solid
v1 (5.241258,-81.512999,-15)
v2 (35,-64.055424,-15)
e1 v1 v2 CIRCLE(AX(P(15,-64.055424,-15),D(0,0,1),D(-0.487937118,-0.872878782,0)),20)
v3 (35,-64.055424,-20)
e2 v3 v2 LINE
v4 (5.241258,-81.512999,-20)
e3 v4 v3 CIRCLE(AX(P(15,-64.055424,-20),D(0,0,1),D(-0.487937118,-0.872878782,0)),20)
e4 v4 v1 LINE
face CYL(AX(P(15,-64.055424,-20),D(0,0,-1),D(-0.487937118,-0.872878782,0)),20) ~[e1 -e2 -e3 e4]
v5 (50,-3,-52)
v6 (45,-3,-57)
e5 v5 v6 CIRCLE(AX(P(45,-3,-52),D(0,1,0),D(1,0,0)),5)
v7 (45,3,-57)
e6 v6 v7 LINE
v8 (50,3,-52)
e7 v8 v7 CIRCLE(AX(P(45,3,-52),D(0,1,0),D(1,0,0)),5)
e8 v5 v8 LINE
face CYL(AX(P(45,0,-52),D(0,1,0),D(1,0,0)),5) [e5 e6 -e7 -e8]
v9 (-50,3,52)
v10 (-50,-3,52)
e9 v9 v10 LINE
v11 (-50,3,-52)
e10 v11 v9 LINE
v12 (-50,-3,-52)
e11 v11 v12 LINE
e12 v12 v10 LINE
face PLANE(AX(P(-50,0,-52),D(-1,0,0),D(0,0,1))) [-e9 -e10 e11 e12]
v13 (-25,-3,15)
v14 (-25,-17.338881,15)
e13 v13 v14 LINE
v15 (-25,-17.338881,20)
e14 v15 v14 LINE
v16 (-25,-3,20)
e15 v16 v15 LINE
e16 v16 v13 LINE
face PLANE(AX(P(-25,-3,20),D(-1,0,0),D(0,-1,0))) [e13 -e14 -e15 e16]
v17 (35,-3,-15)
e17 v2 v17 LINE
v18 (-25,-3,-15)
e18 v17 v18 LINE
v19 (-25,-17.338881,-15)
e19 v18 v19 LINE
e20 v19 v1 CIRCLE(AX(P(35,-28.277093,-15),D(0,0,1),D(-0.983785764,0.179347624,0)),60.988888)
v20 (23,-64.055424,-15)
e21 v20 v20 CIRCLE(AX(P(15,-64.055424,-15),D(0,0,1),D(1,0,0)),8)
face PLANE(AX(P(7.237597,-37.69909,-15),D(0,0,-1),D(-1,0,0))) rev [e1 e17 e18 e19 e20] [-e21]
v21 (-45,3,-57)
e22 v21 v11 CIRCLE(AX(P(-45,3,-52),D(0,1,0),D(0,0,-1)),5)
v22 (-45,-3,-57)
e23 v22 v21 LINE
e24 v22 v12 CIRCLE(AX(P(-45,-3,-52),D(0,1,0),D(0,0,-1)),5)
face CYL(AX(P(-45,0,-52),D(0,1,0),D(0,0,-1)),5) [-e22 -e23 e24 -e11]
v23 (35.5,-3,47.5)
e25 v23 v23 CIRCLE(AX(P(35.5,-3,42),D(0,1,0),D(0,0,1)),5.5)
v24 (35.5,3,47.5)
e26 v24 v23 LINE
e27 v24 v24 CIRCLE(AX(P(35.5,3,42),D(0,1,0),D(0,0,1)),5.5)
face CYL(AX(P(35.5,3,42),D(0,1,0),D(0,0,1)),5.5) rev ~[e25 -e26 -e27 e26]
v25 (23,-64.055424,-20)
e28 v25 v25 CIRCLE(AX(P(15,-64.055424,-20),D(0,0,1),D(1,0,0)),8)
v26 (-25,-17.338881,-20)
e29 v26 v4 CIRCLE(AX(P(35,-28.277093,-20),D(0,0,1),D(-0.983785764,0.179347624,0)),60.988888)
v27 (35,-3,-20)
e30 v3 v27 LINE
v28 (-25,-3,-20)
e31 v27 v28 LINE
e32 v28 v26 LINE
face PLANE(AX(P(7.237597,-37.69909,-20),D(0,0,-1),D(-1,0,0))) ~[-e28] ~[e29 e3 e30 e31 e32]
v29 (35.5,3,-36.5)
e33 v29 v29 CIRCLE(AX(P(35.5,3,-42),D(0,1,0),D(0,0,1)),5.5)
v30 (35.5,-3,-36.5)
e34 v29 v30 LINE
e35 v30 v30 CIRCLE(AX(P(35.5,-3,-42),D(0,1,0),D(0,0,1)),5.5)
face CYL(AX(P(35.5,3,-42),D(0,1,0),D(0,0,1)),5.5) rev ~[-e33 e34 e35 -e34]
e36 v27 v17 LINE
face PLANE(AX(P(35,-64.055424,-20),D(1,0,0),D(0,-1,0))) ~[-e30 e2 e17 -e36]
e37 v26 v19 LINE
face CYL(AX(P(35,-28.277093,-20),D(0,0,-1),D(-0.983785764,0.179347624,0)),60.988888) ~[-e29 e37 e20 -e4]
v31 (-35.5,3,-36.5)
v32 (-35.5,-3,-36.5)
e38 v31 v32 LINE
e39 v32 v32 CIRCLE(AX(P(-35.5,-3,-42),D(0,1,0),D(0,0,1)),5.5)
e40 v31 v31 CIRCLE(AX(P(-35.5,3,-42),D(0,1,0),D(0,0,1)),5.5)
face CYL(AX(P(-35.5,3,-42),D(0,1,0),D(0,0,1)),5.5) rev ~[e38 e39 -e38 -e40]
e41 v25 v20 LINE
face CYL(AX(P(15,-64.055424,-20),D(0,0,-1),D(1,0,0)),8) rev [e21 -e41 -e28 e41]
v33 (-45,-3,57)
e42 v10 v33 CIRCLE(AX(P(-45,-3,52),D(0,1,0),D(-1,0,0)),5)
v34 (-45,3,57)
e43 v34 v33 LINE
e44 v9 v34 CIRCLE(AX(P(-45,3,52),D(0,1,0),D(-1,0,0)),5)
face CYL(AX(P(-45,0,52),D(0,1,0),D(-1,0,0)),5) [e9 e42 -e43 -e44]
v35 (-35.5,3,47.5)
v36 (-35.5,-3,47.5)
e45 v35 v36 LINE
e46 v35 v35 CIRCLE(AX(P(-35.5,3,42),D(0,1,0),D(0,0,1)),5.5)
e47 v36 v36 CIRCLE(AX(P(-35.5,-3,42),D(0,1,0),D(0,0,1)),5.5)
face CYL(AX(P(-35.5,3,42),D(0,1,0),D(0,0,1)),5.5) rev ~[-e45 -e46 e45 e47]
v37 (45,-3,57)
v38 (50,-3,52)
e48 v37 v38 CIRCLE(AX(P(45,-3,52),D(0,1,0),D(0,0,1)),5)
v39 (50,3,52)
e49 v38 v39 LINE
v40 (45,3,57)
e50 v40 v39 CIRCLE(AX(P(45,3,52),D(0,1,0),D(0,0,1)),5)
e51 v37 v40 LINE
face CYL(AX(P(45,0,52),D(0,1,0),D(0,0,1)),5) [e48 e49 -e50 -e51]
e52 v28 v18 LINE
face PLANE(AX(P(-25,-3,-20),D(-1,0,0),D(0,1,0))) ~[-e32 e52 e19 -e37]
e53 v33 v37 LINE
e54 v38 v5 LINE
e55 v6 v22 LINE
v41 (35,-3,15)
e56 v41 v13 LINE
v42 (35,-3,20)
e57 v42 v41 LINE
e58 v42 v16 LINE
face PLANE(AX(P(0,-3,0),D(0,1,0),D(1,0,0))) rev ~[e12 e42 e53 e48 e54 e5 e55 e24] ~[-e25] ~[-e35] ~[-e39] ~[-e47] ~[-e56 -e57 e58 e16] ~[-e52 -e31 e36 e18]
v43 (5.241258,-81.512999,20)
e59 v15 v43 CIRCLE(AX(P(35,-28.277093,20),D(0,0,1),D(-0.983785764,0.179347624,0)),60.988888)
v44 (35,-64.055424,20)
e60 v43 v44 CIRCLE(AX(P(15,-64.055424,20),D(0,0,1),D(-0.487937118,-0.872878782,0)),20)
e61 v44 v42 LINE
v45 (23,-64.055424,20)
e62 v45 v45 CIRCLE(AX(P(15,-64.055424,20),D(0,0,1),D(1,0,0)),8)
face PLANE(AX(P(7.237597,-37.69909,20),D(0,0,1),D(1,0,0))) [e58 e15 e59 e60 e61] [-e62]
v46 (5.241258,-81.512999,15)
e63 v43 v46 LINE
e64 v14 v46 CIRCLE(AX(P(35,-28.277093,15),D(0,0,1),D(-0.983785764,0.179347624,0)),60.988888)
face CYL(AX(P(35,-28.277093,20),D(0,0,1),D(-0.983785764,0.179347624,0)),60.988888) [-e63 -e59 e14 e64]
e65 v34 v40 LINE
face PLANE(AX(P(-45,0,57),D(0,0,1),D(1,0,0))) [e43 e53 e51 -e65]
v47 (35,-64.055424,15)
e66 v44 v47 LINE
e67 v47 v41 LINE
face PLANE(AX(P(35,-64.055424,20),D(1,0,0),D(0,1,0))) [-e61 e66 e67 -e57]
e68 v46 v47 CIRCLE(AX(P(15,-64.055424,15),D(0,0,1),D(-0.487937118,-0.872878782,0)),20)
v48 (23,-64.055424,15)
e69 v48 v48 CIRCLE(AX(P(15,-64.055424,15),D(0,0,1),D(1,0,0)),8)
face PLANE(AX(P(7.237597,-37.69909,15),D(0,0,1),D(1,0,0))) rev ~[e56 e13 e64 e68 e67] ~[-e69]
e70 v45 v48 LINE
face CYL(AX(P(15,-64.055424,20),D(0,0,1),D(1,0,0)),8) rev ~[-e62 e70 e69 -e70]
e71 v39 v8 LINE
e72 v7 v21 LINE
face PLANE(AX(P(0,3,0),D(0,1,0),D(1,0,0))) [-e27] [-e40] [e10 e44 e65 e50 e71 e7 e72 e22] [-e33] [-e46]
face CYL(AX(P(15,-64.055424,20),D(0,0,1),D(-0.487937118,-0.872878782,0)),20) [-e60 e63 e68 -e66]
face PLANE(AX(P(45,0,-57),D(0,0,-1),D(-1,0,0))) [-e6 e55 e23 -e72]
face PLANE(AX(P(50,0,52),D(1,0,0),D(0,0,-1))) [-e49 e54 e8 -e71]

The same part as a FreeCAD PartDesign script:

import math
import FreeCAD as App
import Part
import Sketcher
Q = App.Units.Quantity

doc = App.newDocument("Part")
body = doc.addObject("PartDesign::Body", "Body")

sketch1 = body.newObject("Sketcher::SketchObject", "Sketch")
sketch1.AttachmentSupport = (doc.getObject("XZ_Plane"), [""])
sketch1.MapMode = "FlatFace"
sketch1.addGeometry(Part.LineSegment(App.Vector(-45, 57, 0), App.Vector(45, 57, 0)), False)
sketch1.addGeometry(Part.ArcOfCircle(Part.Circle(App.Vector(45, 52, 0), App.Vector(0, 0, 1), 5), math.radians(0), math.radians(90)), False)
sketch1.addGeometry(Part.LineSegment(App.Vector(50, 52, 0), App.Vector(50, -52, 0)), False)
sketch1.addGeometry(Part.ArcOfCircle(Part.Circle(App.Vector(45, -52, 0), App.Vector(0, 0, 1), 5), math.radians(-90), math.radians(0)), False)
sketch1.addGeometry(Part.LineSegment(App.Vector(45, -57, 0), App.Vector(-45, -57, 0)), False)
sketch1.addGeometry(Part.ArcOfCircle(Part.Circle(App.Vector(-45, -52, 0), App.Vector(0, 0, 1), 5), math.radians(180), math.radians(270)), False)
sketch1.addGeometry(Part.LineSegment(App.Vector(-50, -52, 0), App.Vector(-50, 52, 0)), False)
sketch1.addGeometry(Part.ArcOfCircle(Part.Circle(App.Vector(-45, 52, 0), App.Vector(0, 0, 1), 5), math.radians(90), math.radians(180)), False)
sketch1.addConstraint(Sketcher.Constraint("Tangent", 0, 2, 1, 2))
sketch1.addConstraint(Sketcher.Constraint("Tangent", 1, 1, 2, 1))
sketch1.addConstraint(Sketcher.Constraint("Tangent", 2, 2, 3, 2))
sketch1.addConstraint(Sketcher.Constraint("Tangent", 3, 1, 4, 1))
sketch1.addConstraint(Sketcher.Constraint("Tangent", 4, 2, 5, 2))
sketch1.addConstraint(Sketcher.Constraint("Tangent", 5, 1, 6, 1))
sketch1.addConstraint(Sketcher.Constraint("Tangent", 6, 2, 7, 2))
sketch1.addConstraint(Sketcher.Constraint("Tangent", 7, 1, 0, 1))
sketch1.addConstraint(Sketcher.Constraint("Horizontal", 0))
sketch1.addConstraint(Sketcher.Constraint("Vertical", 2))
sketch1.addConstraint(Sketcher.Constraint("Horizontal", 4))
sketch1.addConstraint(Sketcher.Constraint("Vertical", 6))
sketch1.addConstraint(Sketcher.Constraint("Equal", 1, 3))
sketch1.addConstraint(Sketcher.Constraint("Equal", 3, 5))
sketch1.addConstraint(Sketcher.Constraint("Equal", 5, 7))
sketch1.addConstraint(Sketcher.Constraint("Symmetric", 1, 3, 5, 3, -1, 1))
sketch1.addConstraint(Sketcher.Constraint("Radius", 1, Q("5 mm")))
sketch1.addConstraint(Sketcher.Constraint("DistanceX", 0, 1, 0, 2, Q("90 mm")))
sketch1.addConstraint(Sketcher.Constraint("DistanceY", 2, 2, 2, 1, Q("104 mm")))
pad1 = body.newObject("PartDesign::Pad", "Pad")
pad1.Profile = sketch1
pad1.Length = 6
pad1.Midplane = True

sketch2 = body.newObject("Sketcher::SketchObject", "Sketch001")
sketch2.AttachmentSupport = (doc.getObject("XY_Plane"), [""])
sketch2.MapMode = "FlatFace"
sketch2.AttachmentOffset = App.Placement(App.Vector(0, 0, 20), App.Rotation())
sketch2.addGeometry(Part.LineSegment(App.Vector(-25, -3, 0), App.Vector(-25, -17, 0)), False)
sketch2.addGeometry(Part.ArcOfCircle(Part.Circle(App.Vector(35, -28, 0), App.Vector(0, 0, 1), 61), math.radians(170), math.radians(241)), False)
sketch2.addGeometry(Part.ArcOfCircle(Part.Circle(App.Vector(15, -64, 0), App.Vector(0, 0, 1), 20), math.radians(-119), math.radians(0)), False)
sketch2.addGeometry(Part.LineSegment(App.Vector(35, -64, 0), App.Vector(35, -3, 0)), False)
sketch2.addGeometry(Part.LineSegment(App.Vector(35, -3, 0), App.Vector(-25, -3, 0)), False)
sketch2.addGeometry(Part.Circle(App.Vector(15, -64, 0), App.Vector(0, 0, 1), 8), False)
sketch2.addConstraint(Sketcher.Constraint("Coincident", 0, 2, 1, 1))
sketch2.addConstraint(Sketcher.Constraint("Tangent", 1, 2, 2, 1))
sketch2.addConstraint(Sketcher.Constraint("Tangent", 2, 2, 3, 1))
sketch2.addConstraint(Sketcher.Constraint("Coincident", 3, 2, 4, 1))
sketch2.addConstraint(Sketcher.Constraint("Coincident", 4, 2, 0, 1))
sketch2.addConstraint(Sketcher.Constraint("Vertical", 0))
sketch2.addConstraint(Sketcher.Constraint("Vertical", 3))
sketch2.addConstraint(Sketcher.Constraint("Horizontal", 4))
sketch2.addConstraint(Sketcher.Constraint("Coincident", 5, 3, 2, 3))
sketch2.addConstraint(Sketcher.Constraint("Vertical", 1, 3, 2, 2))
sketch2.addConstraint(Sketcher.Constraint("Diameter", 5, Q("16 mm")))
sketch2.addConstraint(Sketcher.Constraint("Radius", 2, Q("20 mm")))
sketch2.addConstraint(Sketcher.Constraint("DistanceX", 4, 2, 4, 1, Q("60 mm")))
sketch2.addConstraint(Sketcher.Constraint("DistanceX", -1, 1, 1, 3, Q("35 mm")))
sketch2.addConstraint(Sketcher.Constraint("DistanceY", 3, 2, -1, 1, Q("3 mm")))
sketch2.addConstraint(Sketcher.Constraint("Radius", 1, Q("60.988888 mm")))
sketch2.addConstraint(Sketcher.Constraint("DistanceY", 1, 2, -1, 1, Q("81.512999 mm")))
pad2 = body.newObject("PartDesign::Pad", "Pad001")
pad2.Profile = sketch2
pad2.Length = 5
pad2.Reversed = True
doc.recompute()

mirrored = body.newObject("PartDesign::Mirrored", "Mirrored")
mirrored.Originals = [pad2]
mirrored.MirrorPlane = (doc.getObject("XY_Plane"), [""])
body.Tip = mirrored

sketch3 = body.newObject("Sketcher::SketchObject", "Sketch002")
sketch3.AttachmentSupport = (doc.getObject("XZ_Plane"), [""])
sketch3.MapMode = "FlatFace"
sketch3.AttachmentOffset = App.Placement(App.Vector(0, 0, -3), App.Rotation())
sketch3.addGeometry(Part.Circle(App.Vector(36, -42, 0), App.Vector(0, 0, 1), 6), False)
sketch3.addGeometry(Part.Circle(App.Vector(-36, -42, 0), App.Vector(0, 0, 1), 6), False)
sketch3.addGeometry(Part.Circle(App.Vector(-36, 42, 0), App.Vector(0, 0, 1), 6), False)
sketch3.addGeometry(Part.Circle(App.Vector(36, 42, 0), App.Vector(0, 0, 1), 6), False)
sketch3.addConstraint(Sketcher.Constraint("Equal", 0, 1))
sketch3.addConstraint(Sketcher.Constraint("Equal", 1, 2))
sketch3.addConstraint(Sketcher.Constraint("Equal", 2, 3))
sketch3.addConstraint(Sketcher.Constraint("Symmetric", 0, 3, 2, 3, -1, 1))
sketch3.addConstraint(Sketcher.Constraint("Symmetric", 1, 3, 3, 3, -1, 1))
sketch3.addConstraint(Sketcher.Constraint("Symmetric", 0, 3, 1, 3, -2))
sketch3.addConstraint(Sketcher.Constraint("Diameter", 0, Q("11 mm")))
sketch3.addConstraint(Sketcher.Constraint("DistanceY", 0, 3, -1, 1, Q("42 mm")))
sketch3.addConstraint(Sketcher.Constraint("DistanceX", 1, 3, 0, 3, Q("71 mm")))
pocket1 = body.newObject("PartDesign::Pocket", "Pocket")
pocket1.Profile = sketch3
pocket1.Type = "ThroughAll"
pocket1.Reversed = True

doc.recompute()
